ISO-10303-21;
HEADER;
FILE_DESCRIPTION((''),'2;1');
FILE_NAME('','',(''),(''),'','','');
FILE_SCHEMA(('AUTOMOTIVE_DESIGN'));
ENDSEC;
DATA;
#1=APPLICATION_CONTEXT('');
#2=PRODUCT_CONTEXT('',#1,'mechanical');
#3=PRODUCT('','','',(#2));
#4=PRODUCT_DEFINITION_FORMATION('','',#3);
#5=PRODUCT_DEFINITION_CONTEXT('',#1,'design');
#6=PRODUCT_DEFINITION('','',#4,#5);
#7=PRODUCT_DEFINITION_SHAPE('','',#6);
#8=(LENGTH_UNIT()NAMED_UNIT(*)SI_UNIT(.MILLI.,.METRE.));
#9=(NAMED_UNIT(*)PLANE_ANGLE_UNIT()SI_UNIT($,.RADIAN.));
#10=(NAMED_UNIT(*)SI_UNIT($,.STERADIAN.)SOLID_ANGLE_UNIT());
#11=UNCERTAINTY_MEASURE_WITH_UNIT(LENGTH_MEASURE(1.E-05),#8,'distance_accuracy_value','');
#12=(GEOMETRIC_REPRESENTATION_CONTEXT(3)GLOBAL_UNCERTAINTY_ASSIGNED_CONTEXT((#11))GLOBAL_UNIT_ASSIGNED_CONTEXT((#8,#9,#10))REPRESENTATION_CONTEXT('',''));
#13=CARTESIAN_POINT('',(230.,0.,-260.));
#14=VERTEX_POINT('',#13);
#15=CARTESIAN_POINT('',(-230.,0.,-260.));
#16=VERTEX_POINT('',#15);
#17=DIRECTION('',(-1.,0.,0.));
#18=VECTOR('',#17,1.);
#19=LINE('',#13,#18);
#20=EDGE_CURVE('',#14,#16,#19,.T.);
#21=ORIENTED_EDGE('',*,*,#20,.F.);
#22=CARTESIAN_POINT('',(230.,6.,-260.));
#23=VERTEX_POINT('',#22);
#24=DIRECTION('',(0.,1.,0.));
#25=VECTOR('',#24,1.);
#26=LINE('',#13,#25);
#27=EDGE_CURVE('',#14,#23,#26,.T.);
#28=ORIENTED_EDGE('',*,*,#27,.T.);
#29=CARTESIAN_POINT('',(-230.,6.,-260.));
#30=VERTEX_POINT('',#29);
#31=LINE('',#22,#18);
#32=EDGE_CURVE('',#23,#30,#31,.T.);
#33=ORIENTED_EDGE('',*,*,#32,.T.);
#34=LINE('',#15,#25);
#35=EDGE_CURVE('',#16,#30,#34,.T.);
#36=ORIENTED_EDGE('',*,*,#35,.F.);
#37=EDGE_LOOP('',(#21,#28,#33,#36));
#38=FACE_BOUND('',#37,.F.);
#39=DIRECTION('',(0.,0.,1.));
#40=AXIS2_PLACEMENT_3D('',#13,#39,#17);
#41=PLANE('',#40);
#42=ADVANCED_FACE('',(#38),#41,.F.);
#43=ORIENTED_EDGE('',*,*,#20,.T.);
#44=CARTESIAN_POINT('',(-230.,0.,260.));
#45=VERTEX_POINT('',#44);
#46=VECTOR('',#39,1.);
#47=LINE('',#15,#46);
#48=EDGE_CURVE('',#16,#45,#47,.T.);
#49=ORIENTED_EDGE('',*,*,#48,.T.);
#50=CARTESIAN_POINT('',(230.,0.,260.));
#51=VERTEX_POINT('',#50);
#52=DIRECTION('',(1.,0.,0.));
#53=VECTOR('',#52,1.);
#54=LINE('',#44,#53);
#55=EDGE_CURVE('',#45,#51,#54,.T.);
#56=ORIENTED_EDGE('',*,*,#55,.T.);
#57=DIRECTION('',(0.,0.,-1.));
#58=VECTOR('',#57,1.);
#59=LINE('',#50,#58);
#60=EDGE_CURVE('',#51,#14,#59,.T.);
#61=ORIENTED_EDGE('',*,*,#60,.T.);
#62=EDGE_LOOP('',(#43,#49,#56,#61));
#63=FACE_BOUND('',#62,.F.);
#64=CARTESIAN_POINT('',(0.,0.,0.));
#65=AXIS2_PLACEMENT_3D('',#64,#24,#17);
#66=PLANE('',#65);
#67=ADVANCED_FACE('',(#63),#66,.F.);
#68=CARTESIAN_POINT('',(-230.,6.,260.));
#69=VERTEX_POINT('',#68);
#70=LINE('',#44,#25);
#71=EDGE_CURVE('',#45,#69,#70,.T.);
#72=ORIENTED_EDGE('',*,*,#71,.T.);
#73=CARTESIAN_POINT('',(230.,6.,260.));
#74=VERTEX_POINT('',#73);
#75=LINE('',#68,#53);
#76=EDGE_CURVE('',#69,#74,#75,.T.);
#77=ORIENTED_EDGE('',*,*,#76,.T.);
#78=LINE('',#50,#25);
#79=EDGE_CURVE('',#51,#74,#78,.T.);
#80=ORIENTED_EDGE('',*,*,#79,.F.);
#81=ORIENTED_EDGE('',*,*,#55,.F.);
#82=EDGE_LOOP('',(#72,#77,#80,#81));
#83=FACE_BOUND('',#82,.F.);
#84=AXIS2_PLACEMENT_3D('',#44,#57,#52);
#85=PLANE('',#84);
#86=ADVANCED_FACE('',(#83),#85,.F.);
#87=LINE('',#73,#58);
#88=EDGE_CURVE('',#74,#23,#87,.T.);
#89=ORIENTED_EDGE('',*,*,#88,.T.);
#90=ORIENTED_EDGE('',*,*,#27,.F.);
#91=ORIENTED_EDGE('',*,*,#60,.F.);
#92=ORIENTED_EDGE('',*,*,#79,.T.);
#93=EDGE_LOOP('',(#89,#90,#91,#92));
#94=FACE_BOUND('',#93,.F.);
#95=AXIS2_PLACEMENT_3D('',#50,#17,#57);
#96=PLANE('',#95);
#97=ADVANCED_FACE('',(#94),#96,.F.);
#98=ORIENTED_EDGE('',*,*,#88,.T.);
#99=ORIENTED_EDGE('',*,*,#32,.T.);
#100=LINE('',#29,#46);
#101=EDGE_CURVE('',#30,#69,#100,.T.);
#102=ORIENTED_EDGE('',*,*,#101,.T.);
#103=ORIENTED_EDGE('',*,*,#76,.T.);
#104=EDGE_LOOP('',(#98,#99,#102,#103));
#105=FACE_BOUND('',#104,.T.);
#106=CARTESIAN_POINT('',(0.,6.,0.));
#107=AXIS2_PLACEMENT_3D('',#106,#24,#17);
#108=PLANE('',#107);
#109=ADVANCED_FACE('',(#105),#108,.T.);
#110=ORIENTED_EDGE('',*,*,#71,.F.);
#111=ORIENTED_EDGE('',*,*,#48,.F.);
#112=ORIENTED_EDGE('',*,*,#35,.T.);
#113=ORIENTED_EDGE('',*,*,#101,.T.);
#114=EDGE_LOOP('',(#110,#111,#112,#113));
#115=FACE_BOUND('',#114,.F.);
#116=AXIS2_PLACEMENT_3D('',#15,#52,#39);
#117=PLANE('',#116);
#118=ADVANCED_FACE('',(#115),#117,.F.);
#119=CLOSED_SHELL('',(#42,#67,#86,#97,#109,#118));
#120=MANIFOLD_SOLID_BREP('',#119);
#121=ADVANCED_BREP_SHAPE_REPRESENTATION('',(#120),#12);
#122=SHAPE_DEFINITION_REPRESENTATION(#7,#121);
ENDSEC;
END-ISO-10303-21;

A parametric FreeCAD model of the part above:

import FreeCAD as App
import Part
import Sketcher


def add_polygon(sketch, points):
    """Adds a closed chain of lines whose ends are joined by coincident constraints."""
    first, n = sketch.GeometryCount, len(points)
    for a, b in zip(points, points[1:] + points[:1]):
        sketch.addGeometry(Part.LineSegment(App.Vector(*a, 0), App.Vector(*b, 0)), False)
    for i in range(n):
        sketch.addConstraint(Sketcher.Constraint("Coincident", first + i, 2, first + (i + 1) % n, 1))

doc = App.newDocument("Part")
params = doc.addObject("Spreadsheet::Sheet", "Params")
for row, (alias, value) in enumerate([
    ("sketch1_width", "460 mm"),
    ("sketch1_height", "520 mm"),
    ("pad1_length", "6 mm"),
], start=1):
    params.set(f"A{row}", alias)
    params.set(f"B{row}", "=" + value)
    params.setAlias(f"B{row}", alias)

body = doc.addObject("PartDesign::Body", "Body")

sketch1 = body.newObject("Sketcher::SketchObject", "Sketch")
sketch1.AttachmentSupport = (doc.getObject("XZ_Plane"), [""])
sketch1.MapMode = "FlatFace"
add_polygon(sketch1, [(230, 260), (230, -260), (-230, -260), (-230, 260)])
sketch1.addConstraint(Sketcher.Constraint("Vertical", 0))
sketch1.addConstraint(Sketcher.Constraint("Horizontal", 1))
sketch1.addConstraint(Sketcher.Constraint("Vertical", 2))
sketch1.addConstraint(Sketcher.Constraint("Horizontal", 3))
sketch1.addConstraint(Sketcher.Constraint("Symmetric", 0, 2, 2, 2, -1, 1))
sketch1.addConstraint(Sketcher.Constraint("DistanceX", 1, 2, 1, 1, 460.0))
sketch1.addConstraint(Sketcher.Constraint("DistanceY", 0, 2, 0, 1, 520.0))
sketch1.setExpression("Constraints[9]", "Params.sketch1_width")
sketch1.setExpression("Constraints[10]", "Params.sketch1_height")
pad1 = body.newObject("PartDesign::Pad", "Pad")
pad1.Profile = sketch1
pad1.setExpression("Length", "Params.pad1_length")
pad1.Reversed = True

doc.recompute()
